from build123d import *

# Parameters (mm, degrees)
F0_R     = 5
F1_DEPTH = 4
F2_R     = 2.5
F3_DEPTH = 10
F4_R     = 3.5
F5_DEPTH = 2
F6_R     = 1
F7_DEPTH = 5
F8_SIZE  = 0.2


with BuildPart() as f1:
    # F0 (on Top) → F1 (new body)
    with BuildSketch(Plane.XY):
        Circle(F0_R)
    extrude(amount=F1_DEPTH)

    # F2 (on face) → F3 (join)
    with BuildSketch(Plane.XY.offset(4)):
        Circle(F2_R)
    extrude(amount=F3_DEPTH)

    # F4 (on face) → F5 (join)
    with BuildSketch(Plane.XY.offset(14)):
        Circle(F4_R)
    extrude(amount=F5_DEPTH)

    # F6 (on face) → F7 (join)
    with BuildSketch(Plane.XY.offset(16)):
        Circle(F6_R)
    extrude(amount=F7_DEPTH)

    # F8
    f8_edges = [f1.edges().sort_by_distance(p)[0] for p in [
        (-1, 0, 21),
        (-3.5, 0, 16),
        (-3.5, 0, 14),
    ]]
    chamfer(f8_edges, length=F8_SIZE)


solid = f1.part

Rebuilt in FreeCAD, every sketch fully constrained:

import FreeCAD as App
import Part
import Sketcher
Q = App.Units.Quantity


def edges_at(feature, points):
    """Names of the edges that pass closest to the given points."""
    edges = feature.Shape.Edges
    near = lambda p: min(range(len(edges)), key=lambda i: edges[i].distToShape(Part.Vertex(*p))[0])
    return sorted({f"Edge{near(p) + 1}" for p in points})

doc = App.newDocument("Part")
body = doc.addObject("PartDesign::Body", "Body")

sketch1 = body.newObject("Sketcher::SketchObject", "Sketch")
sketch1.AttachmentSupport = (doc.getObject("XY_Plane"), [""])
sketch1.MapMode = "FlatFace"
sketch1.addGeometry(Part.Circle(App.Vector(0, 0, 0), App.Vector(0, 0, 1), 5), False)
sketch1.addConstraint(Sketcher.Constraint("Coincident", 0, 3, -1, 1))
sketch1.addConstraint(Sketcher.Constraint("Diameter", 0, Q("10 mm")))
pad1 = body.newObject("PartDesign::Pad", "Pad")
pad1.Profile = sketch1
pad1.Length = 4

sketch2 = body.newObject("Sketcher::SketchObject", "Sketch001")
sketch2.AttachmentSupport = (doc.getObject("XY_Plane"), [""])
sketch2.MapMode = "FlatFace"
sketch2.AttachmentOffset = App.Placement(App.Vector(0, 0, 4), App.Rotation())
sketch2.addGeometry(Part.Circle(App.Vector(0, 0, 0), App.Vector(0, 0, 1), 2.5), False)
sketch2.addConstraint(Sketcher.Constraint("Coincident", 0, 3, -1, 1))
sketch2.addConstraint(Sketcher.Constraint("Diameter", 0, Q("5 mm")))
pad2 = body.newObject("PartDesign::Pad", "Pad001")
pad2.Profile = sketch2
pad2.Length = 10

sketch3 = body.newObject("Sketcher::SketchObject", "Sketch002")
sketch3.AttachmentSupport = (doc.getObject("XY_Plane"), [""])
sketch3.MapMode = "FlatFace"
sketch3.AttachmentOffset = App.Placement(App.Vector(0, 0, 14), App.Rotation())
sketch3.addGeometry(Part.Circle(App.Vector(0, 0, 0), App.Vector(0, 0, 1), 3.5), False)
sketch3.addConstraint(Sketcher.Constraint("Coincident", 0, 3, -1, 1))
sketch3.addConstraint(Sketcher.Constraint("Diameter", 0, Q("7 mm")))
pad3 = body.newObject("PartDesign::Pad", "Pad002")
pad3.Profile = sketch3
pad3.Length = 2

sketch4 = body.newObject("Sketcher::SketchObject", "Sketch003")
sketch4.AttachmentSupport = (doc.getObject("XY_Plane"), [""])
sketch4.MapMode = "FlatFace"
sketch4.AttachmentOffset = App.Placement(App.Vector(0, 0, 16), App.Rotation())
sketch4.addGeometry(Part.Circle(App.Vector(0, 0, 0), App.Vector(0, 0, 1), 1), False)
sketch4.addConstraint(Sketcher.Constraint("Coincident", 0, 3, -1, 1))
sketch4.addConstraint(Sketcher.Constraint("Diameter", 0, Q("2 mm")))
pad4 = body.newObject("PartDesign::Pad", "Pad003")
pad4.Profile = sketch4
pad4.Length = 5
doc.recompute()

chamfer = body.newObject("PartDesign::Chamfer", "Chamfer")
chamfer.Base = (pad4, edges_at(pad4, [(-1, 0, 21), (-3.5, 0, 16), (-3.5, 0, 14)]))
chamfer.Size = 0.2

doc.recompute()
